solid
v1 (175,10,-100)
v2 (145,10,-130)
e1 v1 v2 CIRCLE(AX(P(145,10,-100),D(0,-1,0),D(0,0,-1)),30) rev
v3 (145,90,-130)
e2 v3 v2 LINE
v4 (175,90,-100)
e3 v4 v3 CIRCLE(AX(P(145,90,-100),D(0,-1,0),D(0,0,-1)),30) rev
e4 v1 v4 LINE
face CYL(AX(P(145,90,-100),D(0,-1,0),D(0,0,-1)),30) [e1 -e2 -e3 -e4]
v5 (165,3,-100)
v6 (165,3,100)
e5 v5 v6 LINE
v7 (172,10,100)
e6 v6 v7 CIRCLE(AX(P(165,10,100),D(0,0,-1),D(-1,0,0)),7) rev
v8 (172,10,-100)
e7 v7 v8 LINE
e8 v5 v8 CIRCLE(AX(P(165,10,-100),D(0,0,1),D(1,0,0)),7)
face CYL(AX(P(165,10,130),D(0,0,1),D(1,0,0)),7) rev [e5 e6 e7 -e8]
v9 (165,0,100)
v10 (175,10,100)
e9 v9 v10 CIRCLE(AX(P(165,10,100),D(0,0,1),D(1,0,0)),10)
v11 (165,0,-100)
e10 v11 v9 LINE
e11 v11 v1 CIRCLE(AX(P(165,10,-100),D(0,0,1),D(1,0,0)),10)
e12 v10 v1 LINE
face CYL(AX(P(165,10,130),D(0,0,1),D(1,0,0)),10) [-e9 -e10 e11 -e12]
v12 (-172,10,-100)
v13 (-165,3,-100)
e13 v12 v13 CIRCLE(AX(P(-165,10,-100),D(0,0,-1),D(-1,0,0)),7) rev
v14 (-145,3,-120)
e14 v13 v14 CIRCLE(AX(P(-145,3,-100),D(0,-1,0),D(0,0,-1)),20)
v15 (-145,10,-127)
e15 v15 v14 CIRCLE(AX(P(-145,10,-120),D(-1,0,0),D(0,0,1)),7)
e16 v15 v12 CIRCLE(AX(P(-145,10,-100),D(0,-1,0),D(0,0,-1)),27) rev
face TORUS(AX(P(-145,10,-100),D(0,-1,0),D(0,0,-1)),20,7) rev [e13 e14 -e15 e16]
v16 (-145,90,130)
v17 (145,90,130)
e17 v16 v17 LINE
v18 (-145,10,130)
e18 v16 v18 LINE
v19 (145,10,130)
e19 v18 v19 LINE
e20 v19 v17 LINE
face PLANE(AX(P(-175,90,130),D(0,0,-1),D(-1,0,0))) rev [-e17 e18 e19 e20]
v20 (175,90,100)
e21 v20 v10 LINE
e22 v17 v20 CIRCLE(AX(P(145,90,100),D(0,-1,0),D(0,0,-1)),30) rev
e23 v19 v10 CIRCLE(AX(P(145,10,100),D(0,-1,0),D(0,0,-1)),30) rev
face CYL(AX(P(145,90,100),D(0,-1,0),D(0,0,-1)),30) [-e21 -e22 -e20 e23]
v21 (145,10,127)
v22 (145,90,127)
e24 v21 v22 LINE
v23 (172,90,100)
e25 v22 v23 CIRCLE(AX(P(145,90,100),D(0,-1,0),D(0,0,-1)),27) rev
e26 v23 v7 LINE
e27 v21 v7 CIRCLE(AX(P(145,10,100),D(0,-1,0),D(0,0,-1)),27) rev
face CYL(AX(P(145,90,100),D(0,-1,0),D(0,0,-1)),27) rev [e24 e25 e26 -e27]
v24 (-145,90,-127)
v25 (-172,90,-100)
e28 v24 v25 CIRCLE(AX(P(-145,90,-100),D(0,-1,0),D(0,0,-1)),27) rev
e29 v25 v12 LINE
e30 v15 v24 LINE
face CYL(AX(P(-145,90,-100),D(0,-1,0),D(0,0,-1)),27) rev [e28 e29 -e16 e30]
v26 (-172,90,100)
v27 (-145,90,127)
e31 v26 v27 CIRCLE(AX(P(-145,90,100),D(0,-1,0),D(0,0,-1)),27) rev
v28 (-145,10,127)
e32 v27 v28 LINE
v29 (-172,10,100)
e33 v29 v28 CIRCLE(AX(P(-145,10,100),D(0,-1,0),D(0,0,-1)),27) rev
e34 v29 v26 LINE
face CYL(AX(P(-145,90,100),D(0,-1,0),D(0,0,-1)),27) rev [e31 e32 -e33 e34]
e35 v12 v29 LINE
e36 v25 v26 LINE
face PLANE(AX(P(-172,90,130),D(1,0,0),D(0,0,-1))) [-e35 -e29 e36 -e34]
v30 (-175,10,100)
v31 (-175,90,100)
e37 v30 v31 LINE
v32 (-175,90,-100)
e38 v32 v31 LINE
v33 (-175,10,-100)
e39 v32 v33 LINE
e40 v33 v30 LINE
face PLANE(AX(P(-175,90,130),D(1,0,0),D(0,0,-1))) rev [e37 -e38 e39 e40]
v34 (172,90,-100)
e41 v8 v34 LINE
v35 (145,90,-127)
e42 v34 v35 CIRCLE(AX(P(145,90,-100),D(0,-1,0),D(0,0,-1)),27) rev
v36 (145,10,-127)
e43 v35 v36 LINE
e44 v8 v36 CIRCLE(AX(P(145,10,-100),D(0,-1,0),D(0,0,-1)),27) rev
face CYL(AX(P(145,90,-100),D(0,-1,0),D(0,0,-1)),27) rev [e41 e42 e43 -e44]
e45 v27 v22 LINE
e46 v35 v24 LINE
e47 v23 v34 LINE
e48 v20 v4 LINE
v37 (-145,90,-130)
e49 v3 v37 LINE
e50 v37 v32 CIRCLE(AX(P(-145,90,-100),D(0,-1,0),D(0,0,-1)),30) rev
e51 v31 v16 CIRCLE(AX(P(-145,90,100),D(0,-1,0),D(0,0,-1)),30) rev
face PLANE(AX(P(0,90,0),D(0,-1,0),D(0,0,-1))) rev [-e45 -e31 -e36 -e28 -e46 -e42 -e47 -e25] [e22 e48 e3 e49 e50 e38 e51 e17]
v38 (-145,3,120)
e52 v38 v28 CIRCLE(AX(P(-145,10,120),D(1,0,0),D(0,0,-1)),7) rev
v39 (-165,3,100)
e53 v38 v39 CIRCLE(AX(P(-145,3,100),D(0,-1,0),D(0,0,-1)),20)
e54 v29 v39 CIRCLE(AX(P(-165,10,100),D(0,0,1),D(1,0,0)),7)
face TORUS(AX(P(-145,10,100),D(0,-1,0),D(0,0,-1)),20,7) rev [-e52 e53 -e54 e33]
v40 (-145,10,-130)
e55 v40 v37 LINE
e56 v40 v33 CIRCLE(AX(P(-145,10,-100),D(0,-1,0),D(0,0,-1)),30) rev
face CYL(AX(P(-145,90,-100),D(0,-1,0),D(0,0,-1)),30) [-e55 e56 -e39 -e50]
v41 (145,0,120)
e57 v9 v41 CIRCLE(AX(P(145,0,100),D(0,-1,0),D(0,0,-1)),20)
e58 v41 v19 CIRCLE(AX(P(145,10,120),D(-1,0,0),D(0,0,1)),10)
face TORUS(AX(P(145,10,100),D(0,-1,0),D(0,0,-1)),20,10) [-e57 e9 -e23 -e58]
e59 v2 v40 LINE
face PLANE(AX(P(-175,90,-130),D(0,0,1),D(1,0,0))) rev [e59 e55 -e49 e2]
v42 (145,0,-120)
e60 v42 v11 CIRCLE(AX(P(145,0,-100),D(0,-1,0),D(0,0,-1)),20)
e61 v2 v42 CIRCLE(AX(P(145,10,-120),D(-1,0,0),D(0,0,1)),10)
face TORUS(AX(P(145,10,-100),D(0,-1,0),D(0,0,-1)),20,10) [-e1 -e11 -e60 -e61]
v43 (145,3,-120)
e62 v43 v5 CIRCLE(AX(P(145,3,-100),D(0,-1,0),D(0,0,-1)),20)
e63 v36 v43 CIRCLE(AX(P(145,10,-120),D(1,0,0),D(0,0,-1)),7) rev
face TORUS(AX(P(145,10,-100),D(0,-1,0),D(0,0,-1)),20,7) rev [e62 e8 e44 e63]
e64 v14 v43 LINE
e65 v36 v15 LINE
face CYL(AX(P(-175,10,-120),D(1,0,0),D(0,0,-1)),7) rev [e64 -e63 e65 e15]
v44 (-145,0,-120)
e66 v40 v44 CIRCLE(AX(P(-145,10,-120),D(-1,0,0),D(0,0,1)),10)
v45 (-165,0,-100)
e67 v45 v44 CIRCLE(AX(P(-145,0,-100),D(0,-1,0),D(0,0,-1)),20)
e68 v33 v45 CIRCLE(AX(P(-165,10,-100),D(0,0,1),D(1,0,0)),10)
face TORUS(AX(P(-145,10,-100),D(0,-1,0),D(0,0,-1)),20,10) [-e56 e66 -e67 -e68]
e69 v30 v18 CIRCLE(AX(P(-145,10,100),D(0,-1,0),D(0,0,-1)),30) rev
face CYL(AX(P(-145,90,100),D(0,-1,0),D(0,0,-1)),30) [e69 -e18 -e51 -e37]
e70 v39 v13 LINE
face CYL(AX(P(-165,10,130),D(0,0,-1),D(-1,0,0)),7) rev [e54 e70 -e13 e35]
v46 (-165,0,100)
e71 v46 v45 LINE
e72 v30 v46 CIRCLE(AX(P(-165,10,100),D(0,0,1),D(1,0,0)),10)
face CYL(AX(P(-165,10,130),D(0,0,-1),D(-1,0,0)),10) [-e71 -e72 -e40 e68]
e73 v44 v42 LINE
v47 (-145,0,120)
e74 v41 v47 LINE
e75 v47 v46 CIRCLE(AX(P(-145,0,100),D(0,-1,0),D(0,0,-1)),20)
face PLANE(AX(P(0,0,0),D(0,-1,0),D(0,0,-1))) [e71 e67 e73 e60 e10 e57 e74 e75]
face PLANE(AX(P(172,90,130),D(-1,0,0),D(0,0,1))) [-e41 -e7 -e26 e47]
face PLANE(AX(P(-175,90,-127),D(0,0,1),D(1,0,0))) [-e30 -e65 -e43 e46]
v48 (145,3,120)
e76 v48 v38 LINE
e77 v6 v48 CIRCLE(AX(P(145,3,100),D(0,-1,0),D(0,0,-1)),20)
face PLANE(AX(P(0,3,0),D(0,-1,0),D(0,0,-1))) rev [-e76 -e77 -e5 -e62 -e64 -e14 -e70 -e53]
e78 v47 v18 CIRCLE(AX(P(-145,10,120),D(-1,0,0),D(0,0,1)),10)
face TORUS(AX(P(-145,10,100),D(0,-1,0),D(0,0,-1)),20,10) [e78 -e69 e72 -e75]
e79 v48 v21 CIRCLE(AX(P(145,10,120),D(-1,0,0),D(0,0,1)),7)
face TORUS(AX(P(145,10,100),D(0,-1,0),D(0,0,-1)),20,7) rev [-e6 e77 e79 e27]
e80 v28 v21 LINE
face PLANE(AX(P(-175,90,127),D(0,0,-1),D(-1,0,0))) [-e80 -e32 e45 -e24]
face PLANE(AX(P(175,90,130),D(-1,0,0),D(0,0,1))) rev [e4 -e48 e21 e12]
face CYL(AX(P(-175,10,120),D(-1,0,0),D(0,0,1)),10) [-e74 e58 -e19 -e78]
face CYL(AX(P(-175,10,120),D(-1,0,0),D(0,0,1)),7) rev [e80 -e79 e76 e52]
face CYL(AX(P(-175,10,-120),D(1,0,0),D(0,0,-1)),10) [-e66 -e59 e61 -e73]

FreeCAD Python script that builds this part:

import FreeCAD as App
import Part
import Sketcher

V = App.Vector


def edges_at(feature, points):
    """Names of the edges that pass closest to the given points."""
    edges = feature.Shape.Edges
    near = lambda p: min(range(len(edges)), key=lambda i: edges[i].distToShape(Part.Vertex(*p))[0])
    return sorted({f"Edge{near(p) + 1}" for p in points})


def faces_at(feature, points):
    """Names of the faces that lie closest to the given points."""
    faces = feature.Shape.Faces
    near = lambda p: min(range(len(faces)), key=lambda i: faces[i].distToShape(Part.Vertex(*p))[0])
    return sorted({f"Face{near(p) + 1}" for p in points})


def add_polygon(sketch, points):
    """Adds a closed chain of lines whose ends are joined by coincident constraints."""
    first, n = sketch.GeometryCount, len(points)
    for a, b in zip(points, points[1:] + points[:1]):
        sketch.addGeometry(Part.LineSegment(App.Vector(*a, 0), App.Vector(*b, 0)), False)
    for i in range(n):
        sketch.addConstraint(Sketcher.Constraint("Coincident", first + i, 2, first + (i + 1) % n, 1))

doc = App.newDocument("Part")
params = doc.addObject("Spreadsheet::Sheet", "Params")
for row, (alias, value) in enumerate([
    ("sketch1_width", "350 mm"),
    ("sketch1_height", "260 mm"),
    ("pad1_length", "90 mm"),
    ("fillet_radius", "30 mm"),
    ("fillet2_radius", "10 mm"),
    ("thickness_wall", "3 mm"),
], start=1):
    params.set(f"A{row}", alias)
    params.set(f"B{row}", "=" + value)
    params.setAlias(f"B{row}", alias)

body = doc.addObject("PartDesign::Body", "Body")

# Sketch on XZ plane
sketch1 = body.newObject("Sketcher::SketchObject", "Sketch")
sketch1.AttachmentSupport = (doc.getObject("XZ_Plane"), [""])
sketch1.MapMode = "FlatFace"
add_polygon(sketch1, [(-175, -130), (-175, 130), (175, 130), (175, -130)])  # lines 0-3
sketch1.addConstraint([
    Sketcher.Constraint("Vertical", 0),
    Sketcher.Constraint("Horizontal", 1),
    Sketcher.Constraint("Vertical", 2),
    Sketcher.Constraint("Horizontal", 3),
    Sketcher.Constraint("Symmetric", 0, 2, 2, 2, -1, 1),
    Sketcher.Constraint("DistanceX", 1, 1, 1, 2, 350.0),
    Sketcher.Constraint("DistanceY", 0, 1, 0, 2, 260.0),
])
sketch1.setExpression("Constraints[9]", "Params.sketch1_width")
sketch1.setExpression("Constraints[10]", "Params.sketch1_height")
pad1 = body.newObject("PartDesign::Pad", "Pad")
pad1.Profile = sketch1
pad1.setExpression("Length", "Params.pad1_length")
pad1.Reversed = True
doc.recompute()

fillet = body.newObject("PartDesign::Fillet", "Fillet")
fillet.Base = (pad1, edges_at(pad1, [
    (175, 45, 130),
    (-175, 45, 130),
    (-175, 45, -130),
    (175, 45, -130),
]))
fillet.setExpression("Radius", "Params.fillet_radius")
doc.recompute()

fillet2 = body.newObject("PartDesign::Fillet", "Fillet001")
fillet2.Base = (fillet, edges_at(fillet, [
    (-175, 0, 0),
    (175, 0, 0),
    (0, 0, 130),
    (0, 0, -130),
    (166.213, 0, 121.213),
    (166.213, 0, -121.213),
    (-166.213, 0, 121.213),
    (-166.213, 0, -121.213),
]))
fillet2.setExpression("Radius", "Params.fillet2_radius")
doc.recompute()

thickness = body.newObject("PartDesign::Thickness", "Thickness")
thickness.Base = (fillet2, faces_at(fillet2, [(0, 90, 0)]))
thickness.setExpression("Value", "Params.thickness_wall")
thickness.Reversed = True
thickness.Join = "Intersection"

doc.recompute()
